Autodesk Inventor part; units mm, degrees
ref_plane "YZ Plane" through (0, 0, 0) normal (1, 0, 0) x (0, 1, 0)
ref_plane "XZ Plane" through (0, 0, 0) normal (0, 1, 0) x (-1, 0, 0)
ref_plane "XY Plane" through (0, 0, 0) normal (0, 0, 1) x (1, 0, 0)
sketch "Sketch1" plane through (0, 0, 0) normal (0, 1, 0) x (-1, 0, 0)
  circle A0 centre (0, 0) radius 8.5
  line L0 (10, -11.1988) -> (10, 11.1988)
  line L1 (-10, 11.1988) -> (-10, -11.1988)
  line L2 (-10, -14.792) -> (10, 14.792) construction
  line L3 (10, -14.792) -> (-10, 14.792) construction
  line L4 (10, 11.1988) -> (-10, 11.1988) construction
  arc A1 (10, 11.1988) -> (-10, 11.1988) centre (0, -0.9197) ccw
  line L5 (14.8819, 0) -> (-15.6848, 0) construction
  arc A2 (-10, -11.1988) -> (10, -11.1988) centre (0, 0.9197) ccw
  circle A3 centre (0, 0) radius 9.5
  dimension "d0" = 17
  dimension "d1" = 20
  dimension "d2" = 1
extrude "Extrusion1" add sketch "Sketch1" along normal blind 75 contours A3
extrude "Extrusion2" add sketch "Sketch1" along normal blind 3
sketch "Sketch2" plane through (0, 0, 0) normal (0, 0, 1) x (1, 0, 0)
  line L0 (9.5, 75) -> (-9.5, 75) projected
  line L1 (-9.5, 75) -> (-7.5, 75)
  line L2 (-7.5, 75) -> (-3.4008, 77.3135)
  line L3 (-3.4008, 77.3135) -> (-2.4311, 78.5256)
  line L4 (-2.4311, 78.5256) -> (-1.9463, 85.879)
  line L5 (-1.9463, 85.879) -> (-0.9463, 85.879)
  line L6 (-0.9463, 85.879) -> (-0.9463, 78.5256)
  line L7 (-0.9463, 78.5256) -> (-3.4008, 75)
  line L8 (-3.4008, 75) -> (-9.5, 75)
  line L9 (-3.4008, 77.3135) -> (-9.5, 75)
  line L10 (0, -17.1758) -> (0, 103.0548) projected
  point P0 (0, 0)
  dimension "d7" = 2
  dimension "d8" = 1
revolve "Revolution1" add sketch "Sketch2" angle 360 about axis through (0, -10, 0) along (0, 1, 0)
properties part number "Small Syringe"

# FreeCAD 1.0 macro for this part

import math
import FreeCAD as App
import Part
import Sketcher

V = App.Vector
Q = App.Units.Quantity

doc = App.newDocument("Part")
params = doc.addObject("Spreadsheet::Sheet", "Params")
for row, (alias, value) in enumerate([
    ("sketch1_diameter", "17 mm"),
    ("sketch1_diameter2", "19 mm"),
    ("pad1_length", "75 mm"),
    ("sketch2_diameter", "17 mm"),
    ("sketch2_diameter2", "19 mm"),
    ("pad2_length", "3 mm"),
    ("sketch3_width", "1 mm"),
    ("revolution_angle", "360 deg"),
], start=1):
    params.set(f"A{row}", alias)
    params.set(f"B{row}", "=" + value)
    params.setAlias(f"B{row}", alias)

body = doc.addObject("PartDesign::Body", "Body")

# Sketch on XZ plane
sketch1 = body.newObject("Sketcher::SketchObject", "Sketch")
sketch1.AttachmentSupport = (doc.getObject("XZ_Plane"), [""])
sketch1.MapMode = "FlatFace"
sketch1.addGeometry(Part.Circle(V(0, 0, 0), V(0, 0, 1), 10), False)
sketch1.addGeometry(Part.Circle(V(0, 0, 0), V(0, 0, 1), 8), False)
sketch1.addConstraint(Sketcher.Constraint("Coincident", 0, 3, -1, 1))
sketch1.addConstraint(Sketcher.Constraint("Coincident", 1, 3, -1, 1))
sketch1.addConstraint(Sketcher.Constraint("Diameter", 1, Q("17 mm")))
sketch1.addConstraint(Sketcher.Constraint("Diameter", 0, Q("19 mm")))
sketch1.setExpression("Constraints[2]", "Params.sketch1_diameter")
sketch1.setExpression("Constraints[3]", "Params.sketch1_diameter2")
pad1 = body.newObject("PartDesign::Pad", "Pad")
pad1.Profile = sketch1
pad1.setExpression("Length", "Params.pad1_length")
pad1.Reversed = True

# Sketch on XZ plane
sketch2 = body.newObject("Sketcher::SketchObject", "Sketch001")
sketch2.AttachmentSupport = (doc.getObject("XZ_Plane"), [""])
sketch2.MapMode = "FlatFace"
sketch2.addGeometry(Part.Circle(V(0, 0, 0), V(0, 0, 1), 8), False)
sketch2.addGeometry(Part.ArcOfCircle(Part.Circle(V(0, 1, 0), V(0, 0, 1), 16), math.radians(-130), math.radians(-50)), False)
sketch2.addGeometry(Part.LineSegment(V(-10, -11, 0), V(-10, 11, 0)), False)
sketch2.addGeometry(Part.ArcOfCircle(Part.Circle(V(0, -1, 0), V(0, 0, 1), 16), math.radians(50), math.radians(130)), False)
sketch2.addGeometry(Part.LineSegment(V(10, 11, 0), V(10, -11, 0)), False)
sketch2.addGeometry(Part.Circle(V(0, 0, 0), V(0, 0, 1), 10), False)
sketch2.addConstraint(Sketcher.Constraint("Coincident", 1, 1, 2, 1))
sketch2.addConstraint(Sketcher.Constraint("Coincident", 2, 2, 3, 2))
sketch2.addConstraint(Sketcher.Constraint("Coincident", 3, 1, 4, 1))
sketch2.addConstraint(Sketcher.Constraint("Coincident", 4, 2, 1, 2))
sketch2.addConstraint(Sketcher.Constraint("Vertical", 2))
sketch2.addConstraint(Sketcher.Constraint("Vertical", 4))
sketch2.addConstraint(Sketcher.Constraint("Coincident", 0, 3, -1, 1))
sketch2.addConstraint(Sketcher.Constraint("Coincident", 5, 3, -1, 1))
sketch2.addConstraint(Sketcher.Constraint("Equal", 1, 3))
sketch2.addConstraint(Sketcher.Constraint("Symmetric", 1, 3, 3, 3, -1, 1))
sketch2.addConstraint(Sketcher.Constraint("Symmetric", 2, 2, 3, 1, -2))
sketch2.addConstraint(Sketcher.Constraint("Diameter", 0, Q("17 mm")))
sketch2.addConstraint(Sketcher.Constraint("Diameter", 5, Q("19 mm")))
sketch2.addConstraint(Sketcher.Constraint("DistanceX", 2, 2, 3, 1, Q("20 mm")))
sketch2.addConstraint(Sketcher.Constraint("Radius", 1, Q("15.7117 mm")))
sketch2.addConstraint(Sketcher.Constraint("DistanceY", 2, 1, 2, 2, Q("22.3976 mm")))
sketch2.setExpression("Constraints[11]", "Params.sketch2_diameter")
sketch2.setExpression("Constraints[12]", "Params.sketch2_diameter2")
pad2 = body.newObject("PartDesign::Pad", "Pad001")
pad2.Profile = sketch2
pad2.setExpression("Length", "Params.pad2_length")
pad2.Reversed = True

# Sketch on XY plane
sketch3 = body.newObject("Sketcher::SketchObject", "Sketch002")
sketch3.AttachmentSupport = (doc.getObject("XY_Plane"), [""])
sketch3.MapMode = "FlatFace"
sketch3.addGeometry(Part.LineSegment(V(-3.4, 75, 0), V(-0.9, 78.5, 0)), False)
sketch3.addGeometry(Part.LineSegment(V(-0.9, 78.5, 0), V(-0.9, 85.9, 0)), False)
sketch3.addGeometry(Part.LineSegment(V(-0.9, 85.9, 0), V(-1.9, 85.9, 0)), False)
sketch3.addGeometry(Part.LineSegment(V(-1.9, 85.9, 0), V(-2.4, 78.5, 0)), False)
sketch3.addGeometry(Part.LineSegment(V(-2.4, 78.5, 0), V(-3.4, 77.3, 0)), False)
sketch3.addGeometry(Part.LineSegment(V(-3.4, 77.3, 0), V(-9.5, 75, 0)), False)
sketch3.addGeometry(Part.LineSegment(V(-9.5, 75, 0), V(-3.4, 75, 0)), False)
sketch3.addConstraint(Sketcher.Constraint("Coincident", 0, 2, 1, 1))
sketch3.addConstraint(Sketcher.Constraint("Coincident", 1, 2, 2, 1))
sketch3.addConstraint(Sketcher.Constraint("Coincident", 2, 2, 3, 1))
sketch3.addConstraint(Sketcher.Constraint("Coincident", 3, 2, 4, 1))
sketch3.addConstraint(Sketcher.Constraint("Coincident", 4, 2, 5, 1))
sketch3.addConstraint(Sketcher.Constraint("Coincident", 5, 2, 6, 1))
sketch3.addConstraint(Sketcher.Constraint("Coincident", 6, 2, 0, 1))
sketch3.addConstraint(Sketcher.Constraint("Vertical", 1))
sketch3.addConstraint(Sketcher.Constraint("Horizontal", 2))
sketch3.addConstraint(Sketcher.Constraint("Horizontal", 6))
sketch3.addConstraint(Sketcher.Constraint("Horizontal", 0, 2, 3, 2))
sketch3.addConstraint(Sketcher.Constraint("Vertical", 4, 2, 6, 2))
sketch3.addConstraint(Sketcher.Constraint("DistanceX", 2, 2, 2, 1, Q("1 mm")))
sketch3.addConstraint(Sketcher.Constraint("DistanceY", -1, 1, 5, 2, Q("75 mm")))
sketch3.addConstraint(Sketcher.Constraint("DistanceX", 5, 2, -1, 1, Q("9.5 mm")))
sketch3.addConstraint(Sketcher.Constraint("Angle", 4, Q("-128.6604 deg")))
sketch3.addConstraint(Sketcher.Constraint("DistanceX", 6, 1, 6, 2, Q("6.0992 mm")))
sketch3.addConstraint(Sketcher.Constraint("DistanceY", 1, 1, 1, 2, Q("7.3534 mm")))
sketch3.addConstraint(Sketcher.Constraint("DistanceY", -1, 1, 1, 2, Q("85.879 mm")))
sketch3.addConstraint(Sketcher.Constraint("DistanceX", 3, 2, -1, 1, Q("2.431 mm")))
sketch3.addConstraint(Sketcher.Constraint("Distance", 0, Q("4.2959 mm")))
sketch3.setExpression("Constraints[12]", "Params.sketch3_width")
revolution = body.newObject("PartDesign::Revolution", "Revolution")
revolution.Profile = sketch3
revolution.ReferenceAxis = (sketch3, ["V_Axis"])
revolution.setExpression("Angle", "Params.revolution_angle")

doc.recompute()
